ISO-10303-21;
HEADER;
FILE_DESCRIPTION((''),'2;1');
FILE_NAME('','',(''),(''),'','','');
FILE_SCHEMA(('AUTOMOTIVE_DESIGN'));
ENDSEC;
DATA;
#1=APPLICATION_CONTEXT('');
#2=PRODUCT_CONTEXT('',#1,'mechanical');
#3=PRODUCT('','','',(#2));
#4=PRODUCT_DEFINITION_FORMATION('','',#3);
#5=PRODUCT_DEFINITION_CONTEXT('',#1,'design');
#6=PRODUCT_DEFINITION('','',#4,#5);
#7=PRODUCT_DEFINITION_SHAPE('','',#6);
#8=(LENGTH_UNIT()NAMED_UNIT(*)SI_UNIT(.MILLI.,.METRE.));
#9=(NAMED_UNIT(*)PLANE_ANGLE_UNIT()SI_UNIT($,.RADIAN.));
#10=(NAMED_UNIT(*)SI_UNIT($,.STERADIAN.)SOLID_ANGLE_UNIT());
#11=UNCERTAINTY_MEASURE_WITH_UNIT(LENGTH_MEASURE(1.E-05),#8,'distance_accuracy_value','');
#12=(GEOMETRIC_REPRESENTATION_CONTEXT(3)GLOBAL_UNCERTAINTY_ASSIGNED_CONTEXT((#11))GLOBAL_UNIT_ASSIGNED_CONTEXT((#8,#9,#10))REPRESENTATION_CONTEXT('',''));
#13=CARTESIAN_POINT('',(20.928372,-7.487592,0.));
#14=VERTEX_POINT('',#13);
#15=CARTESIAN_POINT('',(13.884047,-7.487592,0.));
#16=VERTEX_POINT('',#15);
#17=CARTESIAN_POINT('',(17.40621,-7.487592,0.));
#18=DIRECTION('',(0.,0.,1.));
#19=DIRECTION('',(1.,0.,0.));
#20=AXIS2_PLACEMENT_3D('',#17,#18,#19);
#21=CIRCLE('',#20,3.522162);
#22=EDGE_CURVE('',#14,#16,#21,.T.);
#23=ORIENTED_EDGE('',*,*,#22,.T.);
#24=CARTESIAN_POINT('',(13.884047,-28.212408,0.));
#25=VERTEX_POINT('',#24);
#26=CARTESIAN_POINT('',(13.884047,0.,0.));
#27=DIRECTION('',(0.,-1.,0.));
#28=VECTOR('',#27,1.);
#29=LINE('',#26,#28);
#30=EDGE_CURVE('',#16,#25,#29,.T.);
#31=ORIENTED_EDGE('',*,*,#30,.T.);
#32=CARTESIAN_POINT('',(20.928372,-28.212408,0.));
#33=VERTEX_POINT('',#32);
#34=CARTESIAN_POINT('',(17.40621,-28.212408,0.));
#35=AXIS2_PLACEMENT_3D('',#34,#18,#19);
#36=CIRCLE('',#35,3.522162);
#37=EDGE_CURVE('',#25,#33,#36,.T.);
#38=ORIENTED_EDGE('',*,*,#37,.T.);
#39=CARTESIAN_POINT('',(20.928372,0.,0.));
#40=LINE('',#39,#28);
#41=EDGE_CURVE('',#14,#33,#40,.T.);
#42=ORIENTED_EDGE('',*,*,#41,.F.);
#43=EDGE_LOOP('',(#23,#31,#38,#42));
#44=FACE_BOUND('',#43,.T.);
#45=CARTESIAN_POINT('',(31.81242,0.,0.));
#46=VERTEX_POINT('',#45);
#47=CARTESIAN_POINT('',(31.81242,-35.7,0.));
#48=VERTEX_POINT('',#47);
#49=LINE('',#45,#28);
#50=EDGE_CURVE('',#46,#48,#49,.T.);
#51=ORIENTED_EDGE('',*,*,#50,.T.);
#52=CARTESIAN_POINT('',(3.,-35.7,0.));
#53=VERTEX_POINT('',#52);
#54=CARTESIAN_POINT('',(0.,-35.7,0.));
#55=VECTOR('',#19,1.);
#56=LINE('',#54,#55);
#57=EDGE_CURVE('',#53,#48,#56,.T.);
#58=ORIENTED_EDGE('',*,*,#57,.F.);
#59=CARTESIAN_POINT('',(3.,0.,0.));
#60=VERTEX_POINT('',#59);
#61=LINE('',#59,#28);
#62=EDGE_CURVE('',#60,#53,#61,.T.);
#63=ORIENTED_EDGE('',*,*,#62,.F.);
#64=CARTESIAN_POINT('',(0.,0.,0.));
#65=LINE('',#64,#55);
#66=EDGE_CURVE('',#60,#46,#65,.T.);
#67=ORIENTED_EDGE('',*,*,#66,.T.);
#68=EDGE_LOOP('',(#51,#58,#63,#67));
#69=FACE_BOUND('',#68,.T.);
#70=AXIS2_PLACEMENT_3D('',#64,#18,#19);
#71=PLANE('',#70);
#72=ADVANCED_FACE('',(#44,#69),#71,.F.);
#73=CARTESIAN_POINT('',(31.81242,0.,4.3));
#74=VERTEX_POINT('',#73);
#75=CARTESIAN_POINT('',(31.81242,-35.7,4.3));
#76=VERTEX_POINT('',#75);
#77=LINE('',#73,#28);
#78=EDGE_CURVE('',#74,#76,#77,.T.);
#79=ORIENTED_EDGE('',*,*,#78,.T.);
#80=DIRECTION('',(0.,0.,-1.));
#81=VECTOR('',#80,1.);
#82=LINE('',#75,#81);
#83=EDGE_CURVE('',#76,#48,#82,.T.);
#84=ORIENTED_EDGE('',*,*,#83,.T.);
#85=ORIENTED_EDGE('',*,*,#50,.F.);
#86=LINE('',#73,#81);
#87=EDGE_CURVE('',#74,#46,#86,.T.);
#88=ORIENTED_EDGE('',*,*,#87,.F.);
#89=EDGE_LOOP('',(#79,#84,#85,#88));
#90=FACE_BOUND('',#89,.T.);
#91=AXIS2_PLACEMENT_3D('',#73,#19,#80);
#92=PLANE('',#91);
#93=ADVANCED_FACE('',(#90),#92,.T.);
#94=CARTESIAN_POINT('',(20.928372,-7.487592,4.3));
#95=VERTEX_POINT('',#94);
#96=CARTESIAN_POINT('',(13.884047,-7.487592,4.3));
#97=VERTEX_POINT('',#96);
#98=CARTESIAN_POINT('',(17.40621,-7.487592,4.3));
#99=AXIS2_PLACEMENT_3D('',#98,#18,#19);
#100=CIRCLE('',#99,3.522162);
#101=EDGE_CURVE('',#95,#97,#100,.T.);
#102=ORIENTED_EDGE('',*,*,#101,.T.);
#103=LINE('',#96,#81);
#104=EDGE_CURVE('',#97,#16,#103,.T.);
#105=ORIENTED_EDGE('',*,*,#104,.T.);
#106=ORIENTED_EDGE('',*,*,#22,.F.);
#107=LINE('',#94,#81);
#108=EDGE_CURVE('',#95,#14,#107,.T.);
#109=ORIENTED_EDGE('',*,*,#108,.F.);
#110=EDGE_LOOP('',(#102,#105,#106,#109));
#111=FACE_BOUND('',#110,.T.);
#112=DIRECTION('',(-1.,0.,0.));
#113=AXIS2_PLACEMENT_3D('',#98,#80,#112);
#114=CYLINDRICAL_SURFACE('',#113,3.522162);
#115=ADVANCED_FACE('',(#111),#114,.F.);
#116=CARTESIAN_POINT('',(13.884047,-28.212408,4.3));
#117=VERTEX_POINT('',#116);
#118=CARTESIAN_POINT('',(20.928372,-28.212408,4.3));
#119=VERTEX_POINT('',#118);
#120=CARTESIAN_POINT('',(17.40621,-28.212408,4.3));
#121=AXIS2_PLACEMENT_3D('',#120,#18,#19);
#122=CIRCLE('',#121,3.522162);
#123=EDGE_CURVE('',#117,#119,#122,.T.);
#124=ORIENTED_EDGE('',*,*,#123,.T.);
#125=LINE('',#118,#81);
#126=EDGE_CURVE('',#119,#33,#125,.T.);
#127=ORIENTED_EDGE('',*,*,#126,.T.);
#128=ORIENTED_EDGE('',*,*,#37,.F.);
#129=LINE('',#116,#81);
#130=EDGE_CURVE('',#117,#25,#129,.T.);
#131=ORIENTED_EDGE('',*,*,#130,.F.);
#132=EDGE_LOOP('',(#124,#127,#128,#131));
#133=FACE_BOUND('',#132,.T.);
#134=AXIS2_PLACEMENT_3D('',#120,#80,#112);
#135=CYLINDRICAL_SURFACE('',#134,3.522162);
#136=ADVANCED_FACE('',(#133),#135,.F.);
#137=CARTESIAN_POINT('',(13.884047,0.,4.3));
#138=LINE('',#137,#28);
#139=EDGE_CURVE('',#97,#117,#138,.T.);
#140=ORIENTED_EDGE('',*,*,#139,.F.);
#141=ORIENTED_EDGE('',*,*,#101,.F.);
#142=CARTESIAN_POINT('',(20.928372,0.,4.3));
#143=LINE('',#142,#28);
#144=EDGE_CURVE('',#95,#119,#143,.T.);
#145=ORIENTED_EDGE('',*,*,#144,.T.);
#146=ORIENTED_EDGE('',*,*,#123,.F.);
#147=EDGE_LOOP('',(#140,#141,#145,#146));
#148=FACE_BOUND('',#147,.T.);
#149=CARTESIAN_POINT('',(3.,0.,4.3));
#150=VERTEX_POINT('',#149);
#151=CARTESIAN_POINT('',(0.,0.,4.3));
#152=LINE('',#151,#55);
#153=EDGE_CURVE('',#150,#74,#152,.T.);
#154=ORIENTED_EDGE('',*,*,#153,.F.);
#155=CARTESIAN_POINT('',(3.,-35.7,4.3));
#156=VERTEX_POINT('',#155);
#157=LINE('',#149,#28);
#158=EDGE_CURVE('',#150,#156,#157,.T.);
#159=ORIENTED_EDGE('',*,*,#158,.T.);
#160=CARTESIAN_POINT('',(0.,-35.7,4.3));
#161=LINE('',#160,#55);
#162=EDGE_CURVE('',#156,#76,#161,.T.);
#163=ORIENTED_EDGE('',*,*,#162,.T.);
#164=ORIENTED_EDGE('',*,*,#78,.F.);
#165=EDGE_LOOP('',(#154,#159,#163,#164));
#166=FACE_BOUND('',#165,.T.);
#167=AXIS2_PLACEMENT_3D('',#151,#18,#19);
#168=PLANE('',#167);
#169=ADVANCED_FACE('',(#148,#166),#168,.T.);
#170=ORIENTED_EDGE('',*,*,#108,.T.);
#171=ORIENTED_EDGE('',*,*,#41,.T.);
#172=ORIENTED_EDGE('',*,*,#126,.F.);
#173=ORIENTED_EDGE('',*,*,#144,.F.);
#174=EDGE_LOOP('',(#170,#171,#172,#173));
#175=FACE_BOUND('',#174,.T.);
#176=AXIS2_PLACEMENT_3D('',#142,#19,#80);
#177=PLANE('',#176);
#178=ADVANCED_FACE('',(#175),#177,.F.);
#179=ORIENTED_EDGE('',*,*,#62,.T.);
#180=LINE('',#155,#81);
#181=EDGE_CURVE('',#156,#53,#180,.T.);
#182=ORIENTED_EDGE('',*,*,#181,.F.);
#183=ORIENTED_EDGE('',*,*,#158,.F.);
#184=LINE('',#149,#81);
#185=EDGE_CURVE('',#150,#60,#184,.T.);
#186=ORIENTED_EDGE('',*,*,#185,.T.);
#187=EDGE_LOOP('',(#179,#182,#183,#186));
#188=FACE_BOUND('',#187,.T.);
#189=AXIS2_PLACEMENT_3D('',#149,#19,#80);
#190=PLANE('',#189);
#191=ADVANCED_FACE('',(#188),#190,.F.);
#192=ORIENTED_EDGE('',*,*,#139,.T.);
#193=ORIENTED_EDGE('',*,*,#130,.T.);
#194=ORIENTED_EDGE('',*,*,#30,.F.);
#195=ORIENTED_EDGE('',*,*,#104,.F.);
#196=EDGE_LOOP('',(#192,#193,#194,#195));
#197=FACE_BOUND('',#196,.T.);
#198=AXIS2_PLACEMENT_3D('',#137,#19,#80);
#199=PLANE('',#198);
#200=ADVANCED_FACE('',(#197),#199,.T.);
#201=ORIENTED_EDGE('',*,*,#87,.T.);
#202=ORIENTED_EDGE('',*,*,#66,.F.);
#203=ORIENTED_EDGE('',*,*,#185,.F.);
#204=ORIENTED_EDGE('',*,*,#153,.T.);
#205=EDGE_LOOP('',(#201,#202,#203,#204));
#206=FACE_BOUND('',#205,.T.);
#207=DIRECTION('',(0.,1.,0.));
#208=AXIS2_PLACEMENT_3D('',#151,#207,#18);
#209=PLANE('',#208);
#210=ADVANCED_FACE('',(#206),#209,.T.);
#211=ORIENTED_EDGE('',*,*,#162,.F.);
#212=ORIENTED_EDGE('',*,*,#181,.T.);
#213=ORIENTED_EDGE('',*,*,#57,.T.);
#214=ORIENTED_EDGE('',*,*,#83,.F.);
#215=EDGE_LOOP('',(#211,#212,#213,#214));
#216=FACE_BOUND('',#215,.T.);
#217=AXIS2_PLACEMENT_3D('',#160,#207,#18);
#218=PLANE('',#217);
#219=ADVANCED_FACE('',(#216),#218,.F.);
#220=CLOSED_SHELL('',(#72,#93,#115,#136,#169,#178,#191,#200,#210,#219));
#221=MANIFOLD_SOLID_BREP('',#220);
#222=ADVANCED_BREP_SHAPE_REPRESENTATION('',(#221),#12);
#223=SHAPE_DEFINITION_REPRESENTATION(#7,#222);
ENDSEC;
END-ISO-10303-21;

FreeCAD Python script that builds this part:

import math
import FreeCAD as App
import Part
import Sketcher


def add_polygon(sketch, points):
    """Adds a closed chain of lines whose ends are joined by coincident constraints."""
    first, n = sketch.GeometryCount, len(points)
    for a, b in zip(points, points[1:] + points[:1]):
        sketch.addGeometry(Part.LineSegment(App.Vector(*a, 0), App.Vector(*b, 0)), False)
    for i in range(n):
        sketch.addConstraint(Sketcher.Constraint("Coincident", first + i, 2, first + (i + 1) % n, 1))

doc = App.newDocument("Part")
body = doc.addObject("PartDesign::Body", "Body")

sketch1 = doc.addObject("Sketcher::SketchObject", "Sketch")
body.addObject(sketch1)
sketch1.AttachmentSupport = (doc.XY_Plane, [""])
sketch1.MapMode = "FlatFace"
add_polygon(sketch1, [(3, 0), (3, -35.7), (31.8, -35.7), (31.8, 0)])
sketch1.addGeometry(Part.ArcOfCircle(Part.Circle(App.Vector(17.4, -28.2, 0), App.Vector(0, 0, 1), 3.5), math.radians(180), math.radians(360)), False)
sketch1.addGeometry(Part.LineSegment(App.Vector(13.9, -28.2, 0), App.Vector(13.9, -7.5, 0)), False)
sketch1.addGeometry(Part.ArcOfCircle(Part.Circle(App.Vector(17.4, -7.5, 0), App.Vector(0, 0, 1), 3.5), math.radians(0), math.radians(180)), False)
sketch1.addGeometry(Part.LineSegment(App.Vector(20.9, -7.5, 0), App.Vector(20.9, -28.2, 0)), False)
sketch1.addConstraint([
    Sketcher.Constraint("Tangent", 4, 1, 5, 1),
    Sketcher.Constraint("Tangent", 5, 2, 6, 2),
    Sketcher.Constraint("Tangent", 6, 1, 7, 1),
    Sketcher.Constraint("Tangent", 7, 2, 4, 2),
    Sketcher.Constraint("Vertical", 0),
    Sketcher.Constraint("Horizontal", 1),
    Sketcher.Constraint("Vertical", 2),
    Sketcher.Constraint("Horizontal", 3),
    Sketcher.Constraint("Vertical", 5),
    Sketcher.Constraint("Vertical", 7),
    Sketcher.Constraint("PointOnObject", 2, 2, -1),
    Sketcher.Constraint("DistanceY", 0, 2, 0, 1, 35.7),
    Sketcher.Constraint("DistanceX", -1, 1, 0, 2, 3.0),
    Sketcher.Constraint("Radius", 4, 3.522162),
    Sketcher.Constraint("DistanceX", 1, 1, 1, 2, 28.81242),
    Sketcher.Constraint("DistanceY", 5, 1, 5, 2, 20.724816),
    Sketcher.Constraint("DistanceX", -1, 1, 4, 3, 17.40621),
    Sketcher.Constraint("DistanceY", 4, 3, -1, 1, 28.212408),
])
pad1 = doc.addObject("PartDesign::Pad", "Pad")
body.addObject(pad1)
pad1.Profile = sketch1
pad1.Length = 4.3

doc.recompute()
